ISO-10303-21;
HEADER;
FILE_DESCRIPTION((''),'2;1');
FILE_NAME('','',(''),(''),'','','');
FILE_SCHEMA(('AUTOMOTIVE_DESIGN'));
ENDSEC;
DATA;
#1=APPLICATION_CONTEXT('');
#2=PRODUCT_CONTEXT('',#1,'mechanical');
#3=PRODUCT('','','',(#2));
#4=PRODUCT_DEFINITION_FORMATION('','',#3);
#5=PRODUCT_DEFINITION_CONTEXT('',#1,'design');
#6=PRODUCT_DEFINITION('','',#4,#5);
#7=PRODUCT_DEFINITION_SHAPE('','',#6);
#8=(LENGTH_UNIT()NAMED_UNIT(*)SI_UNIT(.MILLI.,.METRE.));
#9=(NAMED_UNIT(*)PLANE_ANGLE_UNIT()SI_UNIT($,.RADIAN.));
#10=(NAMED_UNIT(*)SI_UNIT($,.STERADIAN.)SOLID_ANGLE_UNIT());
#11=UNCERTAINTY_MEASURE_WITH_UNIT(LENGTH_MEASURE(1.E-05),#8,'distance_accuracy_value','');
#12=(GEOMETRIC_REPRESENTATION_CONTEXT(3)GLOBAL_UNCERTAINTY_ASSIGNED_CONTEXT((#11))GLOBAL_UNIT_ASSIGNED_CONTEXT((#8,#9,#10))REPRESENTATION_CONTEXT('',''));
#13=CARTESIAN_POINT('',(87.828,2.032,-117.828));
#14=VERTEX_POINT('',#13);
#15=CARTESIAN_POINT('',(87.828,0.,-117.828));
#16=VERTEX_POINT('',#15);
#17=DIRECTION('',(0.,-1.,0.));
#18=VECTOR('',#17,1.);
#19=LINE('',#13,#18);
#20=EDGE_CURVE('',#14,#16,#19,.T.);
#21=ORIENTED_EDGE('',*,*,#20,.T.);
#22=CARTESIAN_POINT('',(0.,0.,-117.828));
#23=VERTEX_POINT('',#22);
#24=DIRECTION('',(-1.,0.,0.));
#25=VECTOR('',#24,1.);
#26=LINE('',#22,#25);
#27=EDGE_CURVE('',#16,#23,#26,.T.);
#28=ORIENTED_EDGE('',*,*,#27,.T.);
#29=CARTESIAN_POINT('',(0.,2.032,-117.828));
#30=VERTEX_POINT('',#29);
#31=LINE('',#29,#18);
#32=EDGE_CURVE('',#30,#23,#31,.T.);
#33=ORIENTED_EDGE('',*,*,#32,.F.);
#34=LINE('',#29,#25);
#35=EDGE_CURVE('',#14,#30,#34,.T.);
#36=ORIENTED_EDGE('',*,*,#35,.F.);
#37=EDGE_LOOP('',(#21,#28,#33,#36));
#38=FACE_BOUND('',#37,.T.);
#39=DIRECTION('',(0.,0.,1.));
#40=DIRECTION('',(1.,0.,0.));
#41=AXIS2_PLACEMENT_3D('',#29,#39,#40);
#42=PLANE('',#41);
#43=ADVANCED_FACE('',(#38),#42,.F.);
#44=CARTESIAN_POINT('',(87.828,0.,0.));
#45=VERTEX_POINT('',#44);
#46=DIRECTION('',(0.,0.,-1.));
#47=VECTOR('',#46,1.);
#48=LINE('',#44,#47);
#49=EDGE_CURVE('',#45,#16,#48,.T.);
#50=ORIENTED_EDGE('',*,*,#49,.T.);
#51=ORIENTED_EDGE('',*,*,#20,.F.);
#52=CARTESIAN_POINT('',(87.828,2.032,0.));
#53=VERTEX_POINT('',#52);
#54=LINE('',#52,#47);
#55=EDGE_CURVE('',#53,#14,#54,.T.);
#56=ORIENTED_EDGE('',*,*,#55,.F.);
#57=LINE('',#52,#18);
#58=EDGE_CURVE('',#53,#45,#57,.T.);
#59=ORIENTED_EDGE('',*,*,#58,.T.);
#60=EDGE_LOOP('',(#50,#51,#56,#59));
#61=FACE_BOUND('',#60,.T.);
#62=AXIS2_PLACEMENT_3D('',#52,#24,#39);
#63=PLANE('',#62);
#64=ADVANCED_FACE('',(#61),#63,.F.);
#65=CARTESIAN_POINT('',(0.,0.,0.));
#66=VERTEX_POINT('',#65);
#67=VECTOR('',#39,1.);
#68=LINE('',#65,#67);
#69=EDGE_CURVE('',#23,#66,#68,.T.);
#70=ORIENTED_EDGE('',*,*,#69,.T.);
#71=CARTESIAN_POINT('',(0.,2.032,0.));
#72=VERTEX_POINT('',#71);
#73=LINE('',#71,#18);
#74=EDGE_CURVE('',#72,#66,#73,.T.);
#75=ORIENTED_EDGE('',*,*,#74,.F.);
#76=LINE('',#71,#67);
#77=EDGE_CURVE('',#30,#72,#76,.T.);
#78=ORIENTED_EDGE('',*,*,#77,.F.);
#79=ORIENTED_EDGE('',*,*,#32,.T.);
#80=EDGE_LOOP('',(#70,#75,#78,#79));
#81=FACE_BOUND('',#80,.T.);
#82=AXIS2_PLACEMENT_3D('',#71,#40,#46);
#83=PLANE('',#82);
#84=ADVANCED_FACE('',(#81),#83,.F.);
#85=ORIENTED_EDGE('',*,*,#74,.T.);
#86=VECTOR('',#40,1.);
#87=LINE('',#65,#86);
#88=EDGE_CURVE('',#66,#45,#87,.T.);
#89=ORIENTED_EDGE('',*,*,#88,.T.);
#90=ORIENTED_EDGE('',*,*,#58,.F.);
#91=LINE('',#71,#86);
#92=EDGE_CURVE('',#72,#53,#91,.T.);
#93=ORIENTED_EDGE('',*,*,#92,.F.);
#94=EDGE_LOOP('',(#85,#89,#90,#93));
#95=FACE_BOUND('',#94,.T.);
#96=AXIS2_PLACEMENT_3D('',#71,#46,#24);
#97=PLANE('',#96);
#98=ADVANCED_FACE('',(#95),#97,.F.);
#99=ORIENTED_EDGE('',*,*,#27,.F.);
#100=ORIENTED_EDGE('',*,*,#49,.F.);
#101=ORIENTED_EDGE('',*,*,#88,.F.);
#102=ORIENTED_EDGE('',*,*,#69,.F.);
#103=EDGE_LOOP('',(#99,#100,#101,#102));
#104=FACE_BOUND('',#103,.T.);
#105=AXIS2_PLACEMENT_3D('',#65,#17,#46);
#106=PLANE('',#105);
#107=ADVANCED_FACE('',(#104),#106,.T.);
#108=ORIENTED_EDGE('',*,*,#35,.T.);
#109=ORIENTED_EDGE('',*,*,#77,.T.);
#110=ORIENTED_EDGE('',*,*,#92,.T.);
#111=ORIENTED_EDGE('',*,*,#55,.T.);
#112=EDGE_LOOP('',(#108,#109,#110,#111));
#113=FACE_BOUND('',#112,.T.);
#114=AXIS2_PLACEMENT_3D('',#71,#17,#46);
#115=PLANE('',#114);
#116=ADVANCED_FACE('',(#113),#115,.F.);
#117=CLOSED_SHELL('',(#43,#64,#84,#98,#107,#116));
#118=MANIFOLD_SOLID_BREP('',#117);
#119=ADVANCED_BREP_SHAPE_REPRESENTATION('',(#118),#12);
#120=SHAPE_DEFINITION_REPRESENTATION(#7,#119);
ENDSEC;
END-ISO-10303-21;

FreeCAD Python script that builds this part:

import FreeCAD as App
import Part
import Sketcher
from FreeCAD import Vector
Q = App.Units.Quantity


def add_polygon(sketch, points):
    """Adds a closed chain of lines whose ends are joined by coincident constraints."""
    first, n = sketch.GeometryCount, len(points)
    for a, b in zip(points, points[1:] + points[:1]):
        sketch.addGeometry(Part.LineSegment(App.Vector(*a, 0), App.Vector(*b, 0)), False)
    for i in range(n):
        sketch.addConstraint(Sketcher.Constraint("Coincident", first + i, 2, first + (i + 1) % n, 1))

doc = App.newDocument("Part")
body = doc.addObject("PartDesign::Body", "Body")

# Sketch on XZ plane
sketch1 = body.newObject("Sketcher::SketchObject", "Sketch")
sketch1.AttachmentSupport = (doc.getObject("XZ_Plane"), [""])
sketch1.MapMode = "FlatFace"
add_polygon(sketch1, [(0, -118), (0, 0), (88, 0), (88, -118)])  # lines 0-3
sketch1.addConstraint([
    Sketcher.Constraint("Vertical", 0),
    Sketcher.Constraint("Horizontal", 1),
    Sketcher.Constraint("Vertical", 2),
    Sketcher.Constraint("Horizontal", 3),
    Sketcher.Constraint("Coincident", 0, 2, -1, 1),
    Sketcher.Constraint("DistanceX", 1, 1, 1, 2, 87.828),
    Sketcher.Constraint("DistanceY", 0, 1, 0, 2, 117.828),
])
pad1 = body.newObject("PartDesign::Pad", "Pad")
pad1.Profile = sketch1
pad1.Length = Q("0.08 in")
pad1.Reversed = True

doc.recompute()
